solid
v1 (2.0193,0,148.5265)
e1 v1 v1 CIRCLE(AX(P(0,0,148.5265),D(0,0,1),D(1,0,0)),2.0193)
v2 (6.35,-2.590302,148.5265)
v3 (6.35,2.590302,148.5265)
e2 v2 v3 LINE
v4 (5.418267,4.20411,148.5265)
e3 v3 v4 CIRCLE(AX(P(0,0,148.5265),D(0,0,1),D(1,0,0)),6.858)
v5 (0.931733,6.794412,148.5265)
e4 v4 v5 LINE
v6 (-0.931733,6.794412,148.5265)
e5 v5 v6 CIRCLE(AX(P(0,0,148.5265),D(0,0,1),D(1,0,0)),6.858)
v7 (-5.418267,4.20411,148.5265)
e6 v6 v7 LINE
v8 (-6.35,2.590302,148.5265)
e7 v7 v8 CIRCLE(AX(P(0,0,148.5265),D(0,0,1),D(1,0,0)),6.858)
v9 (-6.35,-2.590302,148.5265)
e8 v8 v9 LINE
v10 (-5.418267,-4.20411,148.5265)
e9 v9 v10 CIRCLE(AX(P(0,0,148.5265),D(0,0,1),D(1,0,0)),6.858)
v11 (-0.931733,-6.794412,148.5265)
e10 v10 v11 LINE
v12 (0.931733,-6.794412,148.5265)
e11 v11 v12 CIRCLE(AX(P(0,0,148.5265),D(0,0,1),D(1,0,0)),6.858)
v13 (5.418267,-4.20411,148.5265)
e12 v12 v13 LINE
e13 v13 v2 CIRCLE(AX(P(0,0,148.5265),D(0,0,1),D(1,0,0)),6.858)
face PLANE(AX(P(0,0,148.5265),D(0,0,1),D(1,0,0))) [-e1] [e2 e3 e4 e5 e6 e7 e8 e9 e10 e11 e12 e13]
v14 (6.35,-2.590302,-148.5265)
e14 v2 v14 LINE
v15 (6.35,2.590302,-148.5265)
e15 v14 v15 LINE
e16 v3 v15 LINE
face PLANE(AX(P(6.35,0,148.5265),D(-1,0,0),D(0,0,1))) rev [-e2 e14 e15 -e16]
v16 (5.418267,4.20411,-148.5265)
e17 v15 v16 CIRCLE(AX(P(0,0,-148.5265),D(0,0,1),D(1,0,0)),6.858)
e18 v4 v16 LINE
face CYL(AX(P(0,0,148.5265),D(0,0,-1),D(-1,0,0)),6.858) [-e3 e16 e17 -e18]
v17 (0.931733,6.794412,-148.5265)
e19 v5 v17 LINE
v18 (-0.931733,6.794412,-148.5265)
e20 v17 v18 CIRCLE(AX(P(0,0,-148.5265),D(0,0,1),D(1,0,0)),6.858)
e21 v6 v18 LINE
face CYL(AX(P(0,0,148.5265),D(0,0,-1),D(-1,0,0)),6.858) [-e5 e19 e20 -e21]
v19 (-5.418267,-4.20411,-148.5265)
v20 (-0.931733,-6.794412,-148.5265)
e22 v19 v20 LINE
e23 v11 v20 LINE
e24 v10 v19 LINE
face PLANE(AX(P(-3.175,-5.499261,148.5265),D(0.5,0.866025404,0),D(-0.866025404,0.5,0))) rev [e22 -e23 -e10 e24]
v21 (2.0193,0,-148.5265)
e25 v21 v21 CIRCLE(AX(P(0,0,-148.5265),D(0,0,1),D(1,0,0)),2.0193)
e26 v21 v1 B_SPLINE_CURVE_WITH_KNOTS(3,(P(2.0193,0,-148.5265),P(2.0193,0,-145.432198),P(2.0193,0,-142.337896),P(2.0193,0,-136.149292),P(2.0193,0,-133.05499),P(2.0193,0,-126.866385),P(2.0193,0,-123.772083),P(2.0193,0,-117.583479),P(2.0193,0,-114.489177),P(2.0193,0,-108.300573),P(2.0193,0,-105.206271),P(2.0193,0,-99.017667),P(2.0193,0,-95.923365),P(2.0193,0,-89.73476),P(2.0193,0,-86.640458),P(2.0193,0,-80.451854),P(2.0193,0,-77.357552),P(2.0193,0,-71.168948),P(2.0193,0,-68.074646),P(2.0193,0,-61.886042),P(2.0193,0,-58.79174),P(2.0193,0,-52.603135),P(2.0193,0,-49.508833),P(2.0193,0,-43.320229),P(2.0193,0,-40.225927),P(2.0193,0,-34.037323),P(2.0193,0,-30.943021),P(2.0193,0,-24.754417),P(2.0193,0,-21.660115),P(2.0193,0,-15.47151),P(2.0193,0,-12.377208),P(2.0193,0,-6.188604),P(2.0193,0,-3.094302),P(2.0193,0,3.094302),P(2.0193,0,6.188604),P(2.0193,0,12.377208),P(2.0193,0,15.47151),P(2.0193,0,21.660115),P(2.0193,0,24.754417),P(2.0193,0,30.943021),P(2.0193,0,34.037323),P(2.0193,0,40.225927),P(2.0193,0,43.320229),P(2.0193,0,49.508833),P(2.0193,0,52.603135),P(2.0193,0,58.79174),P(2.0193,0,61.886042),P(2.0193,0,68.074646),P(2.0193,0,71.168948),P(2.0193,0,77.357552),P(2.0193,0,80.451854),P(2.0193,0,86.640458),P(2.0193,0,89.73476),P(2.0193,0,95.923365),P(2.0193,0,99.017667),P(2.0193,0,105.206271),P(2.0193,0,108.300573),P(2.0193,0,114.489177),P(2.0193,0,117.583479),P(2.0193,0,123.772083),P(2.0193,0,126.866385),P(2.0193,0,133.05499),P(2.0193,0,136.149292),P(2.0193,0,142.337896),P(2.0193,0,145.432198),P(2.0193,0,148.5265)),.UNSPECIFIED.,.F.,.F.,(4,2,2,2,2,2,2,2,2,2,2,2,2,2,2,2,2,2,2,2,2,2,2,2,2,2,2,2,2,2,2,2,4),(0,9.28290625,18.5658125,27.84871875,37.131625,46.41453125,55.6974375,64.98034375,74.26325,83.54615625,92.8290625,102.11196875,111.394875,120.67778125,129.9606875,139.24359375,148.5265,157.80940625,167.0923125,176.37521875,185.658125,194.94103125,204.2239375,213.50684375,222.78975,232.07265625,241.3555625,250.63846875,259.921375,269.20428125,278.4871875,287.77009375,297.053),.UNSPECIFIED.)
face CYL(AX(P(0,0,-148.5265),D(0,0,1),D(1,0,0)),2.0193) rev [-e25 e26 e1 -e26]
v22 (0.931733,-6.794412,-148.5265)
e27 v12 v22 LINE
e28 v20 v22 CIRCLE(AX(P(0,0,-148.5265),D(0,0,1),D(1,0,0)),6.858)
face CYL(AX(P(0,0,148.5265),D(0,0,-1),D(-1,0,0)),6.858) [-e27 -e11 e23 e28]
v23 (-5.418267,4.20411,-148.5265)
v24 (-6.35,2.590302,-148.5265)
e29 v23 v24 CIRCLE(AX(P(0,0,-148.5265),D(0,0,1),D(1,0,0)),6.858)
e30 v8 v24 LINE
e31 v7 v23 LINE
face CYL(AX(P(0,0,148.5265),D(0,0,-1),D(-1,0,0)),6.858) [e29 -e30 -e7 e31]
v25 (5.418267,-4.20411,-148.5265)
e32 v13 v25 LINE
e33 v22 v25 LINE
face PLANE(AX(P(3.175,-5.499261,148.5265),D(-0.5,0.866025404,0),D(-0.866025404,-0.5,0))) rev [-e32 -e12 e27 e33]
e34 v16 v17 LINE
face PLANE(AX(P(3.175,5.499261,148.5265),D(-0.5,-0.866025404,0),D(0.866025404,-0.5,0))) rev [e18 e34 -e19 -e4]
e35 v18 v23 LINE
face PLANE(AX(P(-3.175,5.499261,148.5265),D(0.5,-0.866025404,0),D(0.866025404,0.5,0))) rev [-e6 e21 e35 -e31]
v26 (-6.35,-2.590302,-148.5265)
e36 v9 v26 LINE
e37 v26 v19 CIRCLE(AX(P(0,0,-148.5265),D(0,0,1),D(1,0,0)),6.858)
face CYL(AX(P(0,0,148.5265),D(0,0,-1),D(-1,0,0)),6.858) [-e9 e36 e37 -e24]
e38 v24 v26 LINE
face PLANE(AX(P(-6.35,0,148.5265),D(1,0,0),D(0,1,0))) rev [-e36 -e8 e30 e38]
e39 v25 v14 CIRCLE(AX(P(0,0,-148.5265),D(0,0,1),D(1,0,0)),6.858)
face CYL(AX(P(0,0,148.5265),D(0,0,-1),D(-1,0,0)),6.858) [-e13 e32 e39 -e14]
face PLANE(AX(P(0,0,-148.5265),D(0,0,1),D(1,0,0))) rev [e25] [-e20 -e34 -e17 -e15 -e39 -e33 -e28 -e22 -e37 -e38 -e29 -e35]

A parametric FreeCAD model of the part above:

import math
import FreeCAD as App
import Part
import Sketcher
Q = App.Units.Quantity

doc = App.newDocument("Part")
body = doc.addObject("PartDesign::Body", "Body")

sketch1 = body.newObject("Sketcher::SketchObject", "Sketch")
sketch1.AttachmentSupport = (doc.getObject("XY_Plane"), [""])
sketch1.MapMode = "FlatFace"
sketch1.addGeometry([
    Part.ArcOfCircle(Part.Circle(App.Vector(0, 0, 0), App.Vector(0, 0, 1), 6.9), math.radians(82.19), math.radians(97.81)),
    Part.LineSegment(App.Vector(-0.9, 6.8, 0), App.Vector(-5.4, 4.2, 0)),
    Part.ArcOfCircle(Part.Circle(App.Vector(0, 0, 0), App.Vector(0, 0, 1), 6.9), math.radians(142.19), math.radians(157.81)),
    Part.LineSegment(App.Vector(-6.3, 2.6, 0), App.Vector(-6.3, -2.6, 0)),
    Part.ArcOfCircle(Part.Circle(App.Vector(0, 0, 0), App.Vector(0, 0, 1), 6.9), math.radians(-157.81), math.radians(-142.19)),
    Part.LineSegment(App.Vector(-5.4, -4.2, 0), App.Vector(-0.9, -6.8, 0)),
    Part.ArcOfCircle(Part.Circle(App.Vector(0, 0, 0), App.Vector(0, 0, 1), 6.9), math.radians(-97.81), math.radians(-82.19)),
    Part.LineSegment(App.Vector(0.9, -6.8, 0), App.Vector(5.4, -4.2, 0)),
    Part.ArcOfCircle(Part.Circle(App.Vector(0, 0, 0), App.Vector(0, 0, 1), 6.9), math.radians(-37.81), math.radians(-22.19)),
    Part.LineSegment(App.Vector(6.3, -2.6, 0), App.Vector(6.3, 2.6, 0)),
    Part.ArcOfCircle(Part.Circle(App.Vector(0, 0, 0), App.Vector(0, 0, 1), 6.9), math.radians(22.19), math.radians(37.81)),
    Part.LineSegment(App.Vector(5.4, 4.2, 0), App.Vector(0.9, 6.8, 0)),
], False)
sketch1.addConstraint([
    Sketcher.Constraint("Coincident", 0, 2, 1, 1),
    Sketcher.Constraint("Coincident", 1, 2, 2, 1),
    Sketcher.Constraint("Coincident", 2, 2, 3, 1),
    Sketcher.Constraint("Coincident", 3, 2, 4, 1),
    Sketcher.Constraint("Coincident", 4, 2, 5, 1),
    Sketcher.Constraint("Coincident", 5, 2, 6, 1),
    Sketcher.Constraint("Coincident", 6, 2, 7, 1),
    Sketcher.Constraint("Coincident", 7, 2, 8, 1),
    Sketcher.Constraint("Coincident", 8, 2, 9, 1),
    Sketcher.Constraint("Coincident", 9, 2, 10, 1),
    Sketcher.Constraint("Coincident", 10, 2, 11, 1),
    Sketcher.Constraint("Coincident", 11, 2, 0, 1),
    Sketcher.Constraint("Vertical", 3),
    Sketcher.Constraint("Vertical", 9),
    Sketcher.Constraint("Coincident", 0, 3, -1, 1),
    Sketcher.Constraint("Coincident", 2, 3, -1, 1),
    Sketcher.Constraint("Coincident", 4, 3, -1, 1),
    Sketcher.Constraint("Coincident", 6, 3, -1, 1),
    Sketcher.Constraint("Coincident", 8, 3, -1, 1),
    Sketcher.Constraint("Coincident", 10, 3, -1, 1),
    Sketcher.Constraint("Equal", 0, 2),
    Sketcher.Constraint("Equal", 2, 4),
    Sketcher.Constraint("Equal", 4, 6),
    Sketcher.Constraint("Equal", 6, 8),
    Sketcher.Constraint("Equal", 8, 10),
    Sketcher.Constraint("Parallel", 1, 7),
    Sketcher.Constraint("Parallel", 5, 11),
    Sketcher.Constraint("Horizontal", 5, 2, 6, 2),
    Sketcher.Constraint("Horizontal", 4, 2, 7, 2),
    Sketcher.Constraint("Horizontal", 3, 2, 8, 2),
    Sketcher.Constraint("Horizontal", 1, 2, 10, 2),
    Sketcher.Constraint("Vertical", 1, 2, 4, 2),
    Sketcher.Constraint("Radius", 0, Q("0.27 in")),
    Sketcher.Constraint("Angle", 1, Q("-150 deg")),
    Sketcher.Constraint("DistanceX", 2, 2, -1, 1, Q("0.25 in")),
    Sketcher.Constraint("DistanceX", 4, 2, 6, 2, Q("0.25 in")),
])
pad1 = body.newObject("PartDesign::Pad", "Pad")
pad1.Profile = sketch1
pad1.Length = Q("11.695 in")
pad1.Midplane = True

sketch2 = body.newObject("Sketcher::SketchObject", "Sketch001")
sketch2.AttachmentSupport = (doc.getObject("XY_Plane"), [""])
sketch2.MapMode = "FlatFace"
sketch2.AttachmentOffset = App.Placement(App.Vector(0, 0, 5.8475 * 25.4), App.Rotation())
sketch2.addGeometry(Part.Circle(App.Vector(0, 0, 0), App.Vector(0, 0, 1), 2), False)
sketch2.addConstraint([
    Sketcher.Constraint("Coincident", 0, 3, -1, 1),
    Sketcher.Constraint("Diameter", 0, Q("0.159 in")),
])
pocket1 = body.newObject("PartDesign::Pocket", "Pocket")
pocket1.Profile = sketch2
pocket1.Type = "ThroughAll"

doc.recompute()
